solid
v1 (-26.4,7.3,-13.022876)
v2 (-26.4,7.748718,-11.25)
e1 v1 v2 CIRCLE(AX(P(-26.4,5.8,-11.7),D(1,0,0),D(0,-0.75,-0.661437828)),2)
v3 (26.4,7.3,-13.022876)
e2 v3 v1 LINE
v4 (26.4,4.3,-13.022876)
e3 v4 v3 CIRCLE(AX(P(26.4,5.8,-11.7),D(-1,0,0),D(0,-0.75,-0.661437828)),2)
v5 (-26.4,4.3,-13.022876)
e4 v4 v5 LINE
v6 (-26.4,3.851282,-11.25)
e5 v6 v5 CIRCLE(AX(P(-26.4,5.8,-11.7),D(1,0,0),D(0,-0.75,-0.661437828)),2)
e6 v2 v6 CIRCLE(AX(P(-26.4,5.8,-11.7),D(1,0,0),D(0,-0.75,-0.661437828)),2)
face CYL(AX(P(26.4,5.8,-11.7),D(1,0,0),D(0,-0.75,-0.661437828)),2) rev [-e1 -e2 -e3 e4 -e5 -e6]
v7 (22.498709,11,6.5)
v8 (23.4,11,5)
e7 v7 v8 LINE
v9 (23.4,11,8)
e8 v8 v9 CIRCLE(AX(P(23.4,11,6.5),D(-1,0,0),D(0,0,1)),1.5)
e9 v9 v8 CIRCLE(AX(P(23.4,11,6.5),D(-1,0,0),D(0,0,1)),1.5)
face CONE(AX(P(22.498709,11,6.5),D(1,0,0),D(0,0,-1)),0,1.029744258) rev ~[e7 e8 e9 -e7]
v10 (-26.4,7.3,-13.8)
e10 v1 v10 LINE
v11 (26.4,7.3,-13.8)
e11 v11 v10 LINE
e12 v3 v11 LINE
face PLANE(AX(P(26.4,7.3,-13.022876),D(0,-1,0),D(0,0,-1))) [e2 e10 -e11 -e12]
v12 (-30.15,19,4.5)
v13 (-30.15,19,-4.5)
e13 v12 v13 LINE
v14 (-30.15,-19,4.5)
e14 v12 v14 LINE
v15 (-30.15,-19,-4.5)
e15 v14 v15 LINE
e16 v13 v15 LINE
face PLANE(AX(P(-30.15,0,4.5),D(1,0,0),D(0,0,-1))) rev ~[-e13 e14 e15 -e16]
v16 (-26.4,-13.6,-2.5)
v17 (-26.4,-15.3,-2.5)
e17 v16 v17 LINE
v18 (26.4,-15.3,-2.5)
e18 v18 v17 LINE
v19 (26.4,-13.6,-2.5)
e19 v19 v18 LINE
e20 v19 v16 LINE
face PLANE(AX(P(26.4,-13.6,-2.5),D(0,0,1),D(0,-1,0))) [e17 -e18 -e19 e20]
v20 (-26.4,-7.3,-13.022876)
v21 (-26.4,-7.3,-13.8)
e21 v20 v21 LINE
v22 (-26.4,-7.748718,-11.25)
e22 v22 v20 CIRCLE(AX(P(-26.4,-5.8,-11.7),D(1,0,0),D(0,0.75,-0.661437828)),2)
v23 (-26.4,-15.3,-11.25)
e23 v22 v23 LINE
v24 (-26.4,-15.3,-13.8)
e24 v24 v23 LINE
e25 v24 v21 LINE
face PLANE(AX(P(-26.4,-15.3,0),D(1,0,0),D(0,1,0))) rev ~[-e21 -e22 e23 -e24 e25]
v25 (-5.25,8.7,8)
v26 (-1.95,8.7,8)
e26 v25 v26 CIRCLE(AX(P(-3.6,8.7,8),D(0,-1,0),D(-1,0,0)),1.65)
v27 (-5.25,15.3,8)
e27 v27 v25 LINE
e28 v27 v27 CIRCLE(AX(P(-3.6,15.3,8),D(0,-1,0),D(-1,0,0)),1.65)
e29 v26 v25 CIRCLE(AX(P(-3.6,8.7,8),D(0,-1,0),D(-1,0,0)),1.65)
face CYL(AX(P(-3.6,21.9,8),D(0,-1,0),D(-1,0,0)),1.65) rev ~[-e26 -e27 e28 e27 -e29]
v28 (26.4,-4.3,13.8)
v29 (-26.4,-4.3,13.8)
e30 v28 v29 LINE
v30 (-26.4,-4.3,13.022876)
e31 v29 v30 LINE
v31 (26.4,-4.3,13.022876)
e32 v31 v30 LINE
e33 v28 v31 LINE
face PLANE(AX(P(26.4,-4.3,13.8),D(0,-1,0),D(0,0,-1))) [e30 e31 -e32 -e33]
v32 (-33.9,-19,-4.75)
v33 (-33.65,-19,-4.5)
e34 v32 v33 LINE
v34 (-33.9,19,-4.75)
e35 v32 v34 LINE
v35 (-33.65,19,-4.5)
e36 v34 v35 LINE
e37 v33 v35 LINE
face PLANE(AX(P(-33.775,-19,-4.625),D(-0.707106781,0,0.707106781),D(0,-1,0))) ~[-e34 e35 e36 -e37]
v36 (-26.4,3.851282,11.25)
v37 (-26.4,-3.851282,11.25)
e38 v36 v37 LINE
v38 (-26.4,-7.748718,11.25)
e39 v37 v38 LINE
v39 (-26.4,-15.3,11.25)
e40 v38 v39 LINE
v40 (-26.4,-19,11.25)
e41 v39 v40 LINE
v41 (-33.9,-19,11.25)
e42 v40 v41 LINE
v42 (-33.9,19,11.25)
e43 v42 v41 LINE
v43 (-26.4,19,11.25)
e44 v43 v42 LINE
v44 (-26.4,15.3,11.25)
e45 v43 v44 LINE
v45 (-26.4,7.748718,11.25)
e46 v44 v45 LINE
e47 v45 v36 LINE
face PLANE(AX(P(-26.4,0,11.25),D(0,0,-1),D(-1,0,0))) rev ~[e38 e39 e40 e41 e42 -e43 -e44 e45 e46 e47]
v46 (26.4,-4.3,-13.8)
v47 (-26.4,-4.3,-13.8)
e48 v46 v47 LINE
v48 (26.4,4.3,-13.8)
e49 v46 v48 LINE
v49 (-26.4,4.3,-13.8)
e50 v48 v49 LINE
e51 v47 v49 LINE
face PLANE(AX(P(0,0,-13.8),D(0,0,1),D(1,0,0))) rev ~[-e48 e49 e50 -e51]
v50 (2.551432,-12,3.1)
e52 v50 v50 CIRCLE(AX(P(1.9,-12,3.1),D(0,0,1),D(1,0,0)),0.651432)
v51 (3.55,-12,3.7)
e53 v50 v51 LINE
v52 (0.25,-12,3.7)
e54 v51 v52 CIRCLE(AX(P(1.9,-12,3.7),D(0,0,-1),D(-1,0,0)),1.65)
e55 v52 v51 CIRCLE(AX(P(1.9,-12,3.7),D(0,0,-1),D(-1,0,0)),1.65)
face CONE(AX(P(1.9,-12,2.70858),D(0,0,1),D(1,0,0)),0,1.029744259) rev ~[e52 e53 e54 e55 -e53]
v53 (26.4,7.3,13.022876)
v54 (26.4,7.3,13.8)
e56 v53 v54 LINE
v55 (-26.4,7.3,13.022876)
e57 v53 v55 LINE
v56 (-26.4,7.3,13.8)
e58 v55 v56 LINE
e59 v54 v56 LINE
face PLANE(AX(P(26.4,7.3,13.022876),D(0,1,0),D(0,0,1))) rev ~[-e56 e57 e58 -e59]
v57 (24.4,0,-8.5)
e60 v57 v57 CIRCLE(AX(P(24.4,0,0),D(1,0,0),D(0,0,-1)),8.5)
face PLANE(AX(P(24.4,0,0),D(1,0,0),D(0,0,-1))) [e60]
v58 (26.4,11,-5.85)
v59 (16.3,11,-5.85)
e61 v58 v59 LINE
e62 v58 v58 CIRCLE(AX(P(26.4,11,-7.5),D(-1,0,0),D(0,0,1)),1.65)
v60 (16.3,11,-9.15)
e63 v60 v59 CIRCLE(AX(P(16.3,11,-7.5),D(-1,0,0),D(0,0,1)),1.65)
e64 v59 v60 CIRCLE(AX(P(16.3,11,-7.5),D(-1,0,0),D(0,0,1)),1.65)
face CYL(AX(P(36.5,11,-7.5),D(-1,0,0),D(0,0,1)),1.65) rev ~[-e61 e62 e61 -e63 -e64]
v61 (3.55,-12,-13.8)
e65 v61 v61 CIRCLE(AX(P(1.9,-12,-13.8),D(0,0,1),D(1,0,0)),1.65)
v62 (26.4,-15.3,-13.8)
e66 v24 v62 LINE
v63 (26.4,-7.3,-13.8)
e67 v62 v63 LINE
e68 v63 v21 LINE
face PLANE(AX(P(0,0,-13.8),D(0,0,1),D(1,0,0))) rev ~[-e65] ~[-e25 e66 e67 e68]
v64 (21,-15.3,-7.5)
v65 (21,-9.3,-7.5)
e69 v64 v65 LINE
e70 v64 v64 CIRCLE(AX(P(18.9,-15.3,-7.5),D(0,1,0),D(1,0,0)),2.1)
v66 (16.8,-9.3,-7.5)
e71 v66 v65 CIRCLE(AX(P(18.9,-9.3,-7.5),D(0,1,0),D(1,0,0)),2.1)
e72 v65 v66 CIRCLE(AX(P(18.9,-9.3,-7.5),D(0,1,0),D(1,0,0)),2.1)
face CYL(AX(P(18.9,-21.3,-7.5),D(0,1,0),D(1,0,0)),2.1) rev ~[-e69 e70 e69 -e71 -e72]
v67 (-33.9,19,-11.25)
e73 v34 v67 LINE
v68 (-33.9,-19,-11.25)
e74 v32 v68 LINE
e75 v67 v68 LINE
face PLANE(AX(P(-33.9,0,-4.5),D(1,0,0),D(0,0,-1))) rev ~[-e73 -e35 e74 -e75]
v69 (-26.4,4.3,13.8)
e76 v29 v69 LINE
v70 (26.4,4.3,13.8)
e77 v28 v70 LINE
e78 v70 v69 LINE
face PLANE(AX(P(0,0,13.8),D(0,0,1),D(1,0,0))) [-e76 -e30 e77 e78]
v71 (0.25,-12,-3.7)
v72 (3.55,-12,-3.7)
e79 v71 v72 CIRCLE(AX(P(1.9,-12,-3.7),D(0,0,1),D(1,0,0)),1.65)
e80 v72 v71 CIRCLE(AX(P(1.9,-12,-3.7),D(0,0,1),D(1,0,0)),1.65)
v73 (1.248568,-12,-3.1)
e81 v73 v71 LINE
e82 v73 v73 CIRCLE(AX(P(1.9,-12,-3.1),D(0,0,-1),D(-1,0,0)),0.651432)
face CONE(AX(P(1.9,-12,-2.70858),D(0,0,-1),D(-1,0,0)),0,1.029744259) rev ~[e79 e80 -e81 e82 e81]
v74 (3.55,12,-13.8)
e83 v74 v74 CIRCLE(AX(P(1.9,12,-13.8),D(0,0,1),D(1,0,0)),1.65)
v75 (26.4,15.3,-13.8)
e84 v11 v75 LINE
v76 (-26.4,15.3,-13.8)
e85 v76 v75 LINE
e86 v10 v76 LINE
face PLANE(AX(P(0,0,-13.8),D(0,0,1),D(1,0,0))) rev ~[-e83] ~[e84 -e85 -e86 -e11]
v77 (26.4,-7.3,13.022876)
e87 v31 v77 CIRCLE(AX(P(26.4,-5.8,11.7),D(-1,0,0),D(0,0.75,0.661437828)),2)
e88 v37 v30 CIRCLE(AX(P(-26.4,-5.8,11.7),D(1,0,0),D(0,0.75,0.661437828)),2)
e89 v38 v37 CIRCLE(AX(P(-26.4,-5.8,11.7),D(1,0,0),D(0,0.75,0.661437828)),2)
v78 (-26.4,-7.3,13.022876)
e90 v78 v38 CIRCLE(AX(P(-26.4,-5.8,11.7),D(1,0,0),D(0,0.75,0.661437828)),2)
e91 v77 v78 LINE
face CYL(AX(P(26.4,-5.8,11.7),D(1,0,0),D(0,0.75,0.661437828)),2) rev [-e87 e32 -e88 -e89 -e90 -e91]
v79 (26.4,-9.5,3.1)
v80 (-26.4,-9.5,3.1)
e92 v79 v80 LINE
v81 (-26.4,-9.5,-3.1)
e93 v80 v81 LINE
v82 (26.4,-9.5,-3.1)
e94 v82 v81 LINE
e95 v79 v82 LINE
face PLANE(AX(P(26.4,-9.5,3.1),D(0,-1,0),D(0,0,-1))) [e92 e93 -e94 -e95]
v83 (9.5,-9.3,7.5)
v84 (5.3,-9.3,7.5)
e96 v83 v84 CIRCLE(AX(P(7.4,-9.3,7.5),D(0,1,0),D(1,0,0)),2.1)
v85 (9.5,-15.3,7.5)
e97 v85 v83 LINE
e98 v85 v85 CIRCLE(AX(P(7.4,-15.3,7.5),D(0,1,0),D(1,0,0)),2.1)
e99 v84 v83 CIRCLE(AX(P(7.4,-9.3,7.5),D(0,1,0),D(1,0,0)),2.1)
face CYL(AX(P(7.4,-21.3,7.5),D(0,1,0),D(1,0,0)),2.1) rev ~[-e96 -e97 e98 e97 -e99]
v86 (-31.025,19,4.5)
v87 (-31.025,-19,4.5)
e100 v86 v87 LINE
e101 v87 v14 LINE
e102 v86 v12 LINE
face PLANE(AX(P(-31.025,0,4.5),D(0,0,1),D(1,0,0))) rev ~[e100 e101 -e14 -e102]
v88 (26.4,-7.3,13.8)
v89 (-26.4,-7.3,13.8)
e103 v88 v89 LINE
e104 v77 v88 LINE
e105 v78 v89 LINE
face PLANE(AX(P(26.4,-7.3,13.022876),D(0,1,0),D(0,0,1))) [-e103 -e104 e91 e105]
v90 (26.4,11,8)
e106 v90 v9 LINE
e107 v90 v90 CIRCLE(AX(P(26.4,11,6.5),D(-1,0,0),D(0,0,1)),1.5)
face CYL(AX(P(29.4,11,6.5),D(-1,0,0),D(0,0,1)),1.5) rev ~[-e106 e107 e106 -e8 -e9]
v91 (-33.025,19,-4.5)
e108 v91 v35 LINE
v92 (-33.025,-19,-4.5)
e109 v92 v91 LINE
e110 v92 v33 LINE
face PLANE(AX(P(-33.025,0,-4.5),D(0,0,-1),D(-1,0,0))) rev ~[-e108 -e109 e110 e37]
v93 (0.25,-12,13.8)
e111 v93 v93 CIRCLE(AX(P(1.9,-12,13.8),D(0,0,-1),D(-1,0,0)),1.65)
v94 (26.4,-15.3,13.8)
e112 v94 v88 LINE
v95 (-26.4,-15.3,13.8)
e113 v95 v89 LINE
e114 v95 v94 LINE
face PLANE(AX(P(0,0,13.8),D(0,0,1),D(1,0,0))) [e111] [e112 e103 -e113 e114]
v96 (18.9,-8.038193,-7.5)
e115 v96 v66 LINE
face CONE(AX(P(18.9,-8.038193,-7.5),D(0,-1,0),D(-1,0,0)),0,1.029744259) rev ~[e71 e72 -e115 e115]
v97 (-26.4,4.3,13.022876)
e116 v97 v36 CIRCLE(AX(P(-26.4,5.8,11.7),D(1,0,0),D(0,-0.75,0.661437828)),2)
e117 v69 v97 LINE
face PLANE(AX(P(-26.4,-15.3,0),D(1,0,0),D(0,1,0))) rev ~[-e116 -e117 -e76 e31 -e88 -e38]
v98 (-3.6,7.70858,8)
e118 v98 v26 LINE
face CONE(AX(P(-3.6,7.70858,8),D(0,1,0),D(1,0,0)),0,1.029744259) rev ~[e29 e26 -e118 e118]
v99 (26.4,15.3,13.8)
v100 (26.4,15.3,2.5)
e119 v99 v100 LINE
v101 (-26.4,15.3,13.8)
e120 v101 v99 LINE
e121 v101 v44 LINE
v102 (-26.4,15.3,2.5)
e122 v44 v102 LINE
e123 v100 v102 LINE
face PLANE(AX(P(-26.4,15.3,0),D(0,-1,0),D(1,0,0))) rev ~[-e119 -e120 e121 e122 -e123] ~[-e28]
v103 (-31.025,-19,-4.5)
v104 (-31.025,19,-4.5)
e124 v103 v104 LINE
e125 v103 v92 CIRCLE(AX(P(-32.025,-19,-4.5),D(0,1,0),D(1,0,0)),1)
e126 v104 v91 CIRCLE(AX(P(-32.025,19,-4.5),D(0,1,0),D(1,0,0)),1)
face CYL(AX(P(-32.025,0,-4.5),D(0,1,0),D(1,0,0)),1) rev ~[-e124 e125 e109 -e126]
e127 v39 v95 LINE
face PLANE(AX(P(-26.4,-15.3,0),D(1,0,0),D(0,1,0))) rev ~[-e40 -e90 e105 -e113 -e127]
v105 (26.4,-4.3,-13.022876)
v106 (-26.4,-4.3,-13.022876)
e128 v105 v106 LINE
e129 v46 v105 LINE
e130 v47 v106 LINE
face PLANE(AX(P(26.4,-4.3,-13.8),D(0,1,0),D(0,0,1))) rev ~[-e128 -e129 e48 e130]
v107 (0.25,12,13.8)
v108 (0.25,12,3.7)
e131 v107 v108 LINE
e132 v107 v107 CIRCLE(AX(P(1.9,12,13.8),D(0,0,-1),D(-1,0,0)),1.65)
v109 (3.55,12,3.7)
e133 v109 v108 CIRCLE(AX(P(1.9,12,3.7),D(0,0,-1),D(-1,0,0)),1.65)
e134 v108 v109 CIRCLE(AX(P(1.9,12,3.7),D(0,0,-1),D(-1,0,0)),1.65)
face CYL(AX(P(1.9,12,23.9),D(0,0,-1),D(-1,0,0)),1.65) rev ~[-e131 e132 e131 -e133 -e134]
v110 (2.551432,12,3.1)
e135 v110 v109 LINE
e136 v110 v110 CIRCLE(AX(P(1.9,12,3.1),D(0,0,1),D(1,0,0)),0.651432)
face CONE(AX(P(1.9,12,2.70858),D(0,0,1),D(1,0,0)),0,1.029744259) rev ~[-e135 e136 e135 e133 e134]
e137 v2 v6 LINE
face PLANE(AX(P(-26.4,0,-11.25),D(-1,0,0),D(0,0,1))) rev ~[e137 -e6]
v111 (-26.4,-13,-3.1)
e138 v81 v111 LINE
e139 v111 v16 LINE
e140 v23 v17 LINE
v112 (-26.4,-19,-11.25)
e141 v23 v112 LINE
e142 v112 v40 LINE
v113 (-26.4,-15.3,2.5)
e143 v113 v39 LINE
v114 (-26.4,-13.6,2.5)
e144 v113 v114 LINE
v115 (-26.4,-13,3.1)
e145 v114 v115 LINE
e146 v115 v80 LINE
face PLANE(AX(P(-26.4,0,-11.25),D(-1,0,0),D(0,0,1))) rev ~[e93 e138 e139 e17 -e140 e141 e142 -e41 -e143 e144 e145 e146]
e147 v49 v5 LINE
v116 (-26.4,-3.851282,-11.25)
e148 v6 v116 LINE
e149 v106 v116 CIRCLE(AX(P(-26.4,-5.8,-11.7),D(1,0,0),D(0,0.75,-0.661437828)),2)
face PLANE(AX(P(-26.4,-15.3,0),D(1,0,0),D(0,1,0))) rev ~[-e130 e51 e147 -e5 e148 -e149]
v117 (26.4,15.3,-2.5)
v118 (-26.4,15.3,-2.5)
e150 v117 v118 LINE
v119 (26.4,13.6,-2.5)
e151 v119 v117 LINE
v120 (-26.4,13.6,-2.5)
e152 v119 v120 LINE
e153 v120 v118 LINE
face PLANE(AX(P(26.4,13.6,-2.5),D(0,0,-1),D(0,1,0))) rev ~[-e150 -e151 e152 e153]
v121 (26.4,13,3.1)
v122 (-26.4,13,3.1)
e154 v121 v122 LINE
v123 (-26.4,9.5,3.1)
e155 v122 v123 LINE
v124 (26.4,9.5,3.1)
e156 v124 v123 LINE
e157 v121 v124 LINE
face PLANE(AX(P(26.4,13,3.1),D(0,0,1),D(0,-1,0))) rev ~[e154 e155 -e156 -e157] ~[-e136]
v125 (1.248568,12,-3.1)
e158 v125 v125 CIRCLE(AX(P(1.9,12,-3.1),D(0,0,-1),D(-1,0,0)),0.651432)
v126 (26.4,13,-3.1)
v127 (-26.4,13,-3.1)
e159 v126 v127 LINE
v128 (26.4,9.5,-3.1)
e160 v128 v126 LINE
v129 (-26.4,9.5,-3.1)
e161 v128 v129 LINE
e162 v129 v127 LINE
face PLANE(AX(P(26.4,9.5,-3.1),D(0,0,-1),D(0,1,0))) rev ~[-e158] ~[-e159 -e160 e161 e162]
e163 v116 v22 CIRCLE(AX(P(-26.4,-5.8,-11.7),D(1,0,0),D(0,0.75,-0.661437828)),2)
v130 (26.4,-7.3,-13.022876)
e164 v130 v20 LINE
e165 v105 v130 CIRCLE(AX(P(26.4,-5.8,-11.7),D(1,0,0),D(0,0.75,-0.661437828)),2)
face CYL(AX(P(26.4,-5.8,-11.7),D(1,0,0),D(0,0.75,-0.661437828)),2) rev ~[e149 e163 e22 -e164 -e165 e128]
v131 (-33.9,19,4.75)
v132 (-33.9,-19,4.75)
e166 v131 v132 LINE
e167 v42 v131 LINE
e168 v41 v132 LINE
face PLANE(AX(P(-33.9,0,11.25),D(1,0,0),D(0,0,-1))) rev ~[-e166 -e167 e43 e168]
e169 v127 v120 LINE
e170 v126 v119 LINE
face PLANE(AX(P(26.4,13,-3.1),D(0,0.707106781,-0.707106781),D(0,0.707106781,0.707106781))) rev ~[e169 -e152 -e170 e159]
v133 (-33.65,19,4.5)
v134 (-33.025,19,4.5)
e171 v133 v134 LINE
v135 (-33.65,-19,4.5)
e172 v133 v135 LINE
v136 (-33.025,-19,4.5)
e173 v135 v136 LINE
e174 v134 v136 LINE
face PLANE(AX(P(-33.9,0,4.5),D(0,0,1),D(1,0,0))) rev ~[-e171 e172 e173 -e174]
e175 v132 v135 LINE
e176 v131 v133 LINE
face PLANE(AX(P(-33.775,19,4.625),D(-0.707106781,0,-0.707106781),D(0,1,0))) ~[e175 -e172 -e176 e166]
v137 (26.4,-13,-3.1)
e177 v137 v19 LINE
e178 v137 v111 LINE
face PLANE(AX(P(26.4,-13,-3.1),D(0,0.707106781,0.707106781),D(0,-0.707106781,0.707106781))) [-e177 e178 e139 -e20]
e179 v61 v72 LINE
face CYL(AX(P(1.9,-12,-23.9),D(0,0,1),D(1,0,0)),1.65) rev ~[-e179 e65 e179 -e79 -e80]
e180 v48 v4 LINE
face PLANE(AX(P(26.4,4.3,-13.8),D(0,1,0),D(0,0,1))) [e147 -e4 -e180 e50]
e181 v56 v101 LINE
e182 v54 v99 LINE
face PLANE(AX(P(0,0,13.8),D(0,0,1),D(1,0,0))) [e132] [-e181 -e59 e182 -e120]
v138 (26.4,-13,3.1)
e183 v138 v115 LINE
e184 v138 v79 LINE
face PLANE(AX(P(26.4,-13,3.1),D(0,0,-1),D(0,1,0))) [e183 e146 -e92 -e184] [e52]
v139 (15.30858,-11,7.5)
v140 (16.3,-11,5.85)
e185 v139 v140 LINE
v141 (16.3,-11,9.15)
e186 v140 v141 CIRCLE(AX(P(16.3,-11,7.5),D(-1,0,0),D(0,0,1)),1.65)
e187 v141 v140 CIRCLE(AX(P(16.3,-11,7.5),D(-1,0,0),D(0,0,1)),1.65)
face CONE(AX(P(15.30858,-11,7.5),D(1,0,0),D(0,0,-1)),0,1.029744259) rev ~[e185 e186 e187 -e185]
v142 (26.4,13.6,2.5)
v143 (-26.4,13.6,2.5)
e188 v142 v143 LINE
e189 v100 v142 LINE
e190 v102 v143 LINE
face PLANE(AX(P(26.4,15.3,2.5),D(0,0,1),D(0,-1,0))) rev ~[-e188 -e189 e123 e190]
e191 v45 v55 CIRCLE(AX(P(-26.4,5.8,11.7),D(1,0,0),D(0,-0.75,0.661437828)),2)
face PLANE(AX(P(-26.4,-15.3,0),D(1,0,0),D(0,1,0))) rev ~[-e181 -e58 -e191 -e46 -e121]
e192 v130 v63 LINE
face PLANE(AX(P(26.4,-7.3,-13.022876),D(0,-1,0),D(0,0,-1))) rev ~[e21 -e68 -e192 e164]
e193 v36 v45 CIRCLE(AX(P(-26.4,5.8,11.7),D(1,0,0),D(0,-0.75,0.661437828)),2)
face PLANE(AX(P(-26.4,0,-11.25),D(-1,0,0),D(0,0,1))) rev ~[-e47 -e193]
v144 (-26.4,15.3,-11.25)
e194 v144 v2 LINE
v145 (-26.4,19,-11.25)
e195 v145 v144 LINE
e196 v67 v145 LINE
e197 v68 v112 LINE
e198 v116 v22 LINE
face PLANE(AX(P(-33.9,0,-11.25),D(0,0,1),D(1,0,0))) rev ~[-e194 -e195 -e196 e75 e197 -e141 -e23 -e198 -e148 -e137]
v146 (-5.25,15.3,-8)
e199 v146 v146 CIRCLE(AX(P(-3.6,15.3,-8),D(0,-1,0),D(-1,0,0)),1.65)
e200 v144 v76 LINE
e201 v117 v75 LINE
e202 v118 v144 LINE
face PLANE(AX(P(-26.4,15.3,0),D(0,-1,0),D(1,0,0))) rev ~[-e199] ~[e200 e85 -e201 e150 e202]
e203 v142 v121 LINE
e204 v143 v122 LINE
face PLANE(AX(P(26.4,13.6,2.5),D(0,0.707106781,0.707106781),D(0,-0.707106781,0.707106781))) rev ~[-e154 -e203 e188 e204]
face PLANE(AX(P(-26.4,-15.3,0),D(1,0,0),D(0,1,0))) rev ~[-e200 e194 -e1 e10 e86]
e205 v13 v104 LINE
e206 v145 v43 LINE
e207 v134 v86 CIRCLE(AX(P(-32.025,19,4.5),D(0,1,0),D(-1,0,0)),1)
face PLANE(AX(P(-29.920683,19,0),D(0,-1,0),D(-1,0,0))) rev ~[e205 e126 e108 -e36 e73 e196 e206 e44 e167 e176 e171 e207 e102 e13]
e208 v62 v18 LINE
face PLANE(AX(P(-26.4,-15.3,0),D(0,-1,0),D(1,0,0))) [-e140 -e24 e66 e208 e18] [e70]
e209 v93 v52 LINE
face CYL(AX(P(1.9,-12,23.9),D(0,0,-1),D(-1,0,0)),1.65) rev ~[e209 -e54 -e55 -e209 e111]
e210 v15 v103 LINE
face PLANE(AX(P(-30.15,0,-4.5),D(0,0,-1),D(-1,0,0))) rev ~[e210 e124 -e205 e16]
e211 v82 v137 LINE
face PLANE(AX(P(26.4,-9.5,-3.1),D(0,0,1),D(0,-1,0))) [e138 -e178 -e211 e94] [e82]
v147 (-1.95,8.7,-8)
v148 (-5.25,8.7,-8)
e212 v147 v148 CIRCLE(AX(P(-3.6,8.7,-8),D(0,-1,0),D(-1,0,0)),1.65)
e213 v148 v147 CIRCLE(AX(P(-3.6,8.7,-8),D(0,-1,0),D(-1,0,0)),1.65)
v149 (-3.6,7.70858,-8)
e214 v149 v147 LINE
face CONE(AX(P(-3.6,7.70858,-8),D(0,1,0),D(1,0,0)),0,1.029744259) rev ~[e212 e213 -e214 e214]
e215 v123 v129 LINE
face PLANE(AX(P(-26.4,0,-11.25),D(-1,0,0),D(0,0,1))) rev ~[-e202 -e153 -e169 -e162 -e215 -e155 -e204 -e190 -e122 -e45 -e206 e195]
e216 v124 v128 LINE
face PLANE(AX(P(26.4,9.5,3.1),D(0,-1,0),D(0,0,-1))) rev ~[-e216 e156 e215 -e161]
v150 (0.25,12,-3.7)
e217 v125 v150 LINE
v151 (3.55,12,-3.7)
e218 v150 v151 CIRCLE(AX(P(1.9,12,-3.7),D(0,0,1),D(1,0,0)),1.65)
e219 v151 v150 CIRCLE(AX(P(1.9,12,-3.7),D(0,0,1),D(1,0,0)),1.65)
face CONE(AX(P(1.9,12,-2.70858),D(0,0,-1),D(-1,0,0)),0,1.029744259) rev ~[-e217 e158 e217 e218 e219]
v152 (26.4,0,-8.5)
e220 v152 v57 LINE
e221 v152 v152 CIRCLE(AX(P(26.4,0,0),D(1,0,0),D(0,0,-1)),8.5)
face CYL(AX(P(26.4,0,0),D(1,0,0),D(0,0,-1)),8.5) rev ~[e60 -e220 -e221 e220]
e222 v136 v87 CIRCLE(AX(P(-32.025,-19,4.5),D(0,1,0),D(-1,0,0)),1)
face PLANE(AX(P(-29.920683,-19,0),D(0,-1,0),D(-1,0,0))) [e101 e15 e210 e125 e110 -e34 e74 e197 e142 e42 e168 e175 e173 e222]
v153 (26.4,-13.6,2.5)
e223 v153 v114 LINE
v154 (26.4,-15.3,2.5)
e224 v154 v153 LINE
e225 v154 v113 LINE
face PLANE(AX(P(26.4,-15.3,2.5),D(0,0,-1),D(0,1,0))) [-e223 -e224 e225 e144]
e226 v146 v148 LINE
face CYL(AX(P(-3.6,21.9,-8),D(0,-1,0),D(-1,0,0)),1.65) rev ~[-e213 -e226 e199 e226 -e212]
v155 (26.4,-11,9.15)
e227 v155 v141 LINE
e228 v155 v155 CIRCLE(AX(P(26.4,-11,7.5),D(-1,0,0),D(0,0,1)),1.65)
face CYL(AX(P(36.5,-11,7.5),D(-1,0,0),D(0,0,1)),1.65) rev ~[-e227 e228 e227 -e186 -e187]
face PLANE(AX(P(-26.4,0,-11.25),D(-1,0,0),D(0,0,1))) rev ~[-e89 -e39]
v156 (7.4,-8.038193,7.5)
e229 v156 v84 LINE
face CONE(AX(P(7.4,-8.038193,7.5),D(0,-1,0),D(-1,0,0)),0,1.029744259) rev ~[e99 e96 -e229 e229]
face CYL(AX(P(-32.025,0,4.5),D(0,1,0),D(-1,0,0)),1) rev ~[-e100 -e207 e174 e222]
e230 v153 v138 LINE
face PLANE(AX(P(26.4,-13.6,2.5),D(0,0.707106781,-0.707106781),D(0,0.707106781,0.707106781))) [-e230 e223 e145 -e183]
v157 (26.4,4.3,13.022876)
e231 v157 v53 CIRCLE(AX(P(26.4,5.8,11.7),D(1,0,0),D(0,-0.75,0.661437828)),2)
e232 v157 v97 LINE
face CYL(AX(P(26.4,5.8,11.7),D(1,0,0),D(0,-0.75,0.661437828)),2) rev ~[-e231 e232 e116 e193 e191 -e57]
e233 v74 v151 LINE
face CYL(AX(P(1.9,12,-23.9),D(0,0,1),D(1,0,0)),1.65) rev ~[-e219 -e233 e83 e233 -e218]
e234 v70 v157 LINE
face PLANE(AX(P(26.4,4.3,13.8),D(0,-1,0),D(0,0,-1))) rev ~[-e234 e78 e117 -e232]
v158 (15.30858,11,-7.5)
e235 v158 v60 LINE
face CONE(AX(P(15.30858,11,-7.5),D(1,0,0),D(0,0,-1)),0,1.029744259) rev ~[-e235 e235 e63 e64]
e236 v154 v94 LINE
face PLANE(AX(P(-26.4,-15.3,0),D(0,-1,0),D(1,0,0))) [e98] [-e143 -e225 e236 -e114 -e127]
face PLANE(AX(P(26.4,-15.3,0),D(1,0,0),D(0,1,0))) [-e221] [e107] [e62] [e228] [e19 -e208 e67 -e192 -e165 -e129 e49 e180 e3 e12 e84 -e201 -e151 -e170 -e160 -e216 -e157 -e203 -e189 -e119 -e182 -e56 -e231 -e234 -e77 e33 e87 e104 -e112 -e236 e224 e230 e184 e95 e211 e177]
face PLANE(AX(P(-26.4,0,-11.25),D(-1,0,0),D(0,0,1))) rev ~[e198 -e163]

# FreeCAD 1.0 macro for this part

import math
import FreeCAD as App
import Part
import Sketcher

V = App.Vector


def edges_at(feature, points):
    """Names of the edges that pass closest to the given points."""
    edges = feature.Shape.Edges
    near = lambda p: min(range(len(edges)), key=lambda i: edges[i].distToShape(Part.Vertex(*p))[0])
    return sorted({f"Edge{near(p) + 1}" for p in points})

doc = App.newDocument("Part")
body = doc.addObject("PartDesign::Body", "Body")

sketch1 = body.newObject("Sketcher::SketchObject", "Sketch")
sketch1.AttachmentSupport = (doc.getObject("XY_Plane"), [""])
sketch1.MapMode = "FlatFace"
sketch1.addGeometry(Part.LineSegment(V(-26, 15, 0), V(-26, -15, 0)), False)
sketch1.addGeometry(Part.LineSegment(V(-26, -15, 0), V(26, -15, 0)), False)
sketch1.addGeometry(Part.LineSegment(V(26, -15, 0), V(26, 15, 0)), False)
sketch1.addGeometry(Part.LineSegment(V(26, 15, 0), V(-26, 15, 0)), False)
sketch1.addConstraint(Sketcher.Constraint("Coincident", 0, 2, 1, 1))
sketch1.addConstraint(Sketcher.Constraint("Coincident", 1, 2, 2, 1))
sketch1.addConstraint(Sketcher.Constraint("Coincident", 2, 2, 3, 1))
sketch1.addConstraint(Sketcher.Constraint("Coincident", 3, 2, 0, 1))
sketch1.addConstraint(Sketcher.Constraint("Vertical", 0))
sketch1.addConstraint(Sketcher.Constraint("Horizontal", 1))
sketch1.addConstraint(Sketcher.Constraint("Vertical", 2))
sketch1.addConstraint(Sketcher.Constraint("Horizontal", 3))
sketch1.addConstraint(Sketcher.Constraint("Symmetric", 0, 2, 2, 2, -1, 1))
sketch1.addConstraint(Sketcher.Constraint("DistanceX", 1, 1, 1, 2, 52.8))
sketch1.addConstraint(Sketcher.Constraint("DistanceY", 0, 2, 0, 1, 30.6))
pad1 = body.newObject("PartDesign::Pad", "Pad")
pad1.Profile = sketch1
pad1.Length = 27.6
pad1.Midplane = True

sketch2 = body.newObject("Sketcher::SketchObject", "Sketch001")
sketch2.AttachmentSupport = (doc.getObject("YZ_Plane"), [""])
sketch2.MapMode = "FlatFace"
sketch2.AttachmentOffset = App.Placement(V(0, 0, 26.4), App.Rotation())
sketch2.addGeometry(Part.LineSegment(V(15.3, -2.5, 0), V(15.3, 2.5, 0)), False)
sketch2.addGeometry(Part.LineSegment(V(15.3, 2.5, 0), V(13.6, 2.5, 0)), False)
sketch2.addGeometry(Part.LineSegment(V(13.6, 2.5, 0), V(13, 3.1, 0)), False)
sketch2.addGeometry(Part.LineSegment(V(13, 3.1, 0), V(9.5, 3.1, 0)), False)
sketch2.addGeometry(Part.LineSegment(V(9.5, 3.1, 0), V(9.5, -3.1, 0)), False)
sketch2.addGeometry(Part.LineSegment(V(9.5, -3.1, 0), V(13, -3.1, 0)), False)
sketch2.addGeometry(Part.LineSegment(V(13, -3.1, 0), V(13.6, -2.5, 0)), False)
sketch2.addGeometry(Part.LineSegment(V(13.6, -2.5, 0), V(15.3, -2.5, 0)), False)
sketch2.addGeometry(Part.LineSegment(V(7.3, 13, 0), V(7.3, 13.8, 0)), False)
sketch2.addGeometry(Part.LineSegment(V(7.3, 13.8, 0), V(4.3, 13.8, 0)), False)
sketch2.addGeometry(Part.LineSegment(V(4.3, 13.8, 0), V(4.3, 13, 0)), False)
sketch2.addGeometry(Part.ArcOfCircle(Part.Circle(V(5.8, 11.7, 0), V(0, 0, 1), 2), math.radians(139), math.radians(401)), False)
sketch2.addGeometry(Part.LineSegment(V(-4.3, 13.8, 0), V(-7.3, 13.8, 0)), False)
sketch2.addGeometry(Part.LineSegment(V(-7.3, 13.8, 0), V(-7.3, 13, 0)), False)
sketch2.addGeometry(Part.ArcOfCircle(Part.Circle(V(-5.8, 11.7, 0), V(0, 0, 1), 2), math.radians(139), math.radians(401)), False)
sketch2.addGeometry(Part.LineSegment(V(-4.3, 13, 0), V(-4.3, 13.8, 0)), False)
sketch2.addGeometry(Part.LineSegment(V(-9.5, -3.1, 0), V(-9.5, 3.1, 0)), False)
sketch2.addGeometry(Part.LineSegment(V(-9.5, 3.1, 0), V(-13, 3.1, 0)), False)
sketch2.addGeometry(Part.LineSegment(V(-13, 3.1, 0), V(-13.6, 2.5, 0)), False)
sketch2.addGeometry(Part.LineSegment(V(-13.6, 2.5, 0), V(-15.3, 2.5, 0)), False)
sketch2.addGeometry(Part.LineSegment(V(-15.3, 2.5, 0), V(-15.3, -2.5, 0)), False)
sketch2.addGeometry(Part.LineSegment(V(-15.3, -2.5, 0), V(-13.6, -2.5, 0)), False)
sketch2.addGeometry(Part.LineSegment(V(-13.6, -2.5, 0), V(-13, -3.1, 0)), False)
sketch2.addGeometry(Part.LineSegment(V(-13, -3.1, 0), V(-9.5, -3.1, 0)), False)
sketch2.addGeometry(Part.LineSegment(V(-7.3, -13, 0), V(-7.3, -13.8, 0)), False)
sketch2.addGeometry(Part.LineSegment(V(-7.3, -13.8, 0), V(-4.3, -13.8, 0)), False)
sketch2.addGeometry(Part.LineSegment(V(-4.3, -13.8, 0), V(-4.3, -13, 0)), False)
sketch2.addGeometry(Part.ArcOfCircle(Part.Circle(V(-5.8, -11.7, 0), V(0, 0, 1), 2), math.radians(-41), math.radians(221)), False)
sketch2.addGeometry(Part.LineSegment(V(4.3, -13.8, 0), V(7.3, -13.8, 0)), False)
sketch2.addGeometry(Part.LineSegment(V(7.3, -13.8, 0), V(7.3, -13, 0)), False)
sketch2.addGeometry(Part.ArcOfCircle(Part.Circle(V(5.8, -11.7, 0), V(0, 0, 1), 2), math.radians(-41), math.radians(221)), False)
sketch2.addGeometry(Part.LineSegment(V(4.3, -13, 0), V(4.3, -13.8, 0)), False)
sketch2.addConstraint(Sketcher.Constraint("Coincident", 0, 2, 1, 1))
sketch2.addConstraint(Sketcher.Constraint("Coincident", 1, 2, 2, 1))
sketch2.addConstraint(Sketcher.Constraint("Coincident", 2, 2, 3, 1))
sketch2.addConstraint(Sketcher.Constraint("Coincident", 3, 2, 4, 1))
sketch2.addConstraint(Sketcher.Constraint("Coincident", 4, 2, 5, 1))
sketch2.addConstraint(Sketcher.Constraint("Coincident", 5, 2, 6, 1))
sketch2.addConstraint(Sketcher.Constraint("Coincident", 6, 2, 7, 1))
sketch2.addConstraint(Sketcher.Constraint("Coincident", 7, 2, 0, 1))
sketch2.addConstraint(Sketcher.Constraint("Coincident", 8, 2, 9, 1))
sketch2.addConstraint(Sketcher.Constraint("Coincident", 9, 2, 10, 1))
sketch2.addConstraint(Sketcher.Constraint("Coincident", 10, 2, 11, 1))
sketch2.addConstraint(Sketcher.Constraint("Coincident", 11, 2, 8, 1))
sketch2.addConstraint(Sketcher.Constraint("Coincident", 12, 2, 13, 1))
sketch2.addConstraint(Sketcher.Constraint("Coincident", 13, 2, 14, 1))
sketch2.addConstraint(Sketcher.Constraint("Coincident", 14, 2, 15, 1))
sketch2.addConstraint(Sketcher.Constraint("Coincident", 15, 2, 12, 1))
sketch2.addConstraint(Sketcher.Constraint("Coincident", 16, 2, 17, 1))
sketch2.addConstraint(Sketcher.Constraint("Coincident", 17, 2, 18, 1))
sketch2.addConstraint(Sketcher.Constraint("Coincident", 18, 2, 19, 1))
sketch2.addConstraint(Sketcher.Constraint("Coincident", 19, 2, 20, 1))
sketch2.addConstraint(Sketcher.Constraint("Coincident", 20, 2, 21, 1))
sketch2.addConstraint(Sketcher.Constraint("Coincident", 21, 2, 22, 1))
sketch2.addConstraint(Sketcher.Constraint("Coincident", 22, 2, 23, 1))
sketch2.addConstraint(Sketcher.Constraint("Coincident", 23, 2, 16, 1))
sketch2.addConstraint(Sketcher.Constraint("Coincident", 24, 2, 25, 1))
sketch2.addConstraint(Sketcher.Constraint("Coincident", 25, 2, 26, 1))
sketch2.addConstraint(Sketcher.Constraint("Coincident", 26, 2, 27, 1))
sketch2.addConstraint(Sketcher.Constraint("Coincident", 27, 2, 24, 1))
sketch2.addConstraint(Sketcher.Constraint("Coincident", 28, 2, 29, 1))
sketch2.addConstraint(Sketcher.Constraint("Coincident", 29, 2, 30, 1))
sketch2.addConstraint(Sketcher.Constraint("Coincident", 30, 2, 31, 1))
sketch2.addConstraint(Sketcher.Constraint("Coincident", 31, 2, 28, 1))
sketch2.addConstraint(Sketcher.Constraint("Vertical", 0))
sketch2.addConstraint(Sketcher.Constraint("Horizontal", 1))
sketch2.addConstraint(Sketcher.Constraint("Horizontal", 3))
sketch2.addConstraint(Sketcher.Constraint("Vertical", 4))
sketch2.addConstraint(Sketcher.Constraint("Horizontal", 5))
sketch2.addConstraint(Sketcher.Constraint("Horizontal", 7))
sketch2.addConstraint(Sketcher.Constraint("Vertical", 8))
sketch2.addConstraint(Sketcher.Constraint("Horizontal", 9))
sketch2.addConstraint(Sketcher.Constraint("Vertical", 10))
sketch2.addConstraint(Sketcher.Constraint("Horizontal", 12))
sketch2.addConstraint(Sketcher.Constraint("Vertical", 13))
sketch2.addConstraint(Sketcher.Constraint("Vertical", 15))
sketch2.addConstraint(Sketcher.Constraint("Vertical", 16))
sketch2.addConstraint(Sketcher.Constraint("Horizontal", 17))
sketch2.addConstraint(Sketcher.Constraint("Horizontal", 19))
sketch2.addConstraint(Sketcher.Constraint("Vertical", 20))
sketch2.addConstraint(Sketcher.Constraint("Horizontal", 21))
sketch2.addConstraint(Sketcher.Constraint("Horizontal", 23))
sketch2.addConstraint(Sketcher.Constraint("Vertical", 24))
sketch2.addConstraint(Sketcher.Constraint("Horizontal", 25))
sketch2.addConstraint(Sketcher.Constraint("Vertical", 26))
sketch2.addConstraint(Sketcher.Constraint("Horizontal", 28))
sketch2.addConstraint(Sketcher.Constraint("Vertical", 29))
sketch2.addConstraint(Sketcher.Constraint("Vertical", 31))
sketch2.addConstraint(Sketcher.Constraint("Equal", 11, 14))
sketch2.addConstraint(Sketcher.Constraint("Equal", 14, 27))
sketch2.addConstraint(Sketcher.Constraint("Equal", 27, 30))
sketch2.addConstraint(Sketcher.Constraint("Symmetric", 11, 3, 27, 3, -1, 1))
sketch2.addConstraint(Sketcher.Constraint("Symmetric", 14, 3, 30, 3, -1, 1))
sketch2.addConstraint(Sketcher.Constraint("Symmetric", 4, 2, 16, 2, -1, 1))
sketch2.addConstraint(Sketcher.Constraint("Symmetric", 6, 2, 18, 2, -1, 1))
sketch2.addConstraint(Sketcher.Constraint("Symmetric", 0, 2, 20, 2, -1, 1))
sketch2.addConstraint(Sketcher.Constraint("Symmetric", 2, 2, 22, 2, -1, 1))
sketch2.addConstraint(Sketcher.Constraint("Symmetric", 8, 2, 24, 2, -1, 1))
sketch2.addConstraint(Sketcher.Constraint("Symmetric", 12, 2, 28, 2, -1, 1))
sketch2.addConstraint(Sketcher.Constraint("Symmetric", 11, 3, 14, 3, -2))
sketch2.addConstraint(Sketcher.Constraint("Symmetric", 8, 2, 12, 2, -2))
sketch2.addConstraint(Sketcher.Constraint("Symmetric", 2, 2, 17, 2, -2))
sketch2.addConstraint(Sketcher.Constraint("Symmetric", 1, 2, 18, 2, -2))
sketch2.addConstraint(Sketcher.Constraint("Perpendicular", 2, 6))
sketch2.addConstraint(Sketcher.Constraint("Parallel", 6, 18))
sketch2.addConstraint(Sketcher.Constraint("Perpendicular", 18, 22))
sketch2.addConstraint(Sketcher.Constraint("Horizontal", 10, 2, 11, 2))
sketch2.addConstraint(Sketcher.Constraint("Horizontal", 13, 2, 14, 2))
sketch2.addConstraint(Sketcher.Constraint("Horizontal", 26, 2, 27, 2))
sketch2.addConstraint(Sketcher.Constraint("Horizontal", 29, 2, 30, 2))
sketch2.addConstraint(Sketcher.Constraint("Radius", 11, 2.0))
sketch2.addConstraint(Sketcher.Constraint("DistanceX", 9, 2, 9, 1, 3.0))
sketch2.addConstraint(Sketcher.Constraint("DistanceY", 0, 1, 0, 2, 5.0))
sketch2.addConstraint(Sketcher.Constraint("DistanceX", 1, 2, 1, 1, 1.7))
sketch2.addConstraint(Sketcher.Constraint("DistanceX", 3, 2, 3, 1, 3.5))
sketch2.addConstraint(Sketcher.Constraint("DistanceY", 4, 2, 4, 1, 6.2))
sketch2.addConstraint(Sketcher.Constraint("DistanceX", -1, 1, 2, 2, 13.0))
sketch2.addConstraint(Sketcher.Constraint("DistanceX", 19, 2, 13, 2, 8.0))
sketch2.addConstraint(Sketcher.Constraint("DistanceY", -1, 1, 11, 3, 11.7))
sketch2.addConstraint(Sketcher.Constraint("DistanceY", -1, 1, 8, 2, 13.8))
pocket1 = body.newObject("PartDesign::Pocket", "Pocket")
pocket1.Profile = sketch2
pocket1.Type = "ThroughAll"

sketch3 = body.newObject("Sketcher::SketchObject", "Sketch002")
sketch3.AttachmentSupport = (doc.getObject("YZ_Plane"), [""])
sketch3.MapMode = "FlatFace"
sketch3.AttachmentOffset = App.Placement(V(0, 0, 26.4), App.Rotation())
sketch3.addGeometry(Part.Circle(V(0, 0, 0), V(0, 0, 1), 8), False)
sketch3.addConstraint(Sketcher.Constraint("Coincident", 0, 3, -1, 1))
sketch3.addConstraint(Sketcher.Constraint("Diameter", 0, 17.0))
pocket2 = body.newObject("PartDesign::Pocket", "Pocket001")
pocket2.Profile = sketch3
pocket2.Length = 2

sketch4 = body.newObject("Sketcher::SketchObject", "Sketch003")
sketch4.AttachmentSupport = (doc.getObject("YZ_Plane"), [""])
sketch4.MapMode = "FlatFace"
sketch4.AttachmentOffset = App.Placement(V(0, 0, 26.4), App.Rotation())
sketch4.addGeometry(Part.Circle(V(-11, 7.5, 0), V(0, 0, 1), 1.6), False)
sketch4.addGeometry(Part.Circle(V(11, -7.5, 0), V(0, 0, 1), 1.6), False)
sketch4.addConstraint(Sketcher.Constraint("Equal", 0, 1))
sketch4.addConstraint(Sketcher.Constraint("Symmetric", 0, 3, 1, 3, -1, 1))
sketch4.addConstraint(Sketcher.Constraint("Diameter", 0, 3.3))
sketch4.addConstraint(Sketcher.Constraint("DistanceX", 0, 3, -1, 1, 11.0))
sketch4.addConstraint(Sketcher.Constraint("DistanceY", 1, 3, 0, 3, 15.0))
doc.recompute()
hole = body.newObject("PartDesign::Hole", "Hole")
hole.Profile = sketch4
hole.ThreadType = "None"
hole.Diameter = 3.3
hole.DepthType = "Dimension"
hole.Depth = 10.1
hole.DrillPoint = "Angled"
hole.DrillPointAngle = 118

sketch5 = body.newObject("Sketcher::SketchObject", "Sketch004")
sketch5.AttachmentSupport = (doc.getObject("YZ_Plane"), [""])
sketch5.MapMode = "FlatFace"
sketch5.AttachmentOffset = App.Placement(V(0, 0, 26.4), App.Rotation())
sketch5.addGeometry(Part.Circle(V(11, 6.5, 0), V(0, 0, 1), 1.5), False)
sketch5.addConstraint(Sketcher.Constraint("Diameter", 0, 3.0))
sketch5.addConstraint(Sketcher.Constraint("DistanceX", -1, 1, 0, 3, 11.0))
sketch5.addConstraint(Sketcher.Constraint("DistanceY", -1, 1, 0, 3, 6.5))
doc.recompute()
hole2 = body.newObject("PartDesign::Hole", "Hole001")
hole2.Profile = sketch5
hole2.ThreadType = "None"
hole2.Diameter = 3
hole2.DepthType = "Dimension"
hole2.Depth = 3
hole2.DrillPoint = "Angled"
hole2.DrillPointAngle = 118

sketch6 = body.newObject("Sketcher::SketchObject", "Sketch005")
sketch6.AttachmentSupport = (doc.getObject("XY_Plane"), [""])
sketch6.MapMode = "FlatFace"
sketch6.AttachmentOffset = App.Placement(V(0, 0, 13.8), App.Rotation())
sketch6.addGeometry(Part.Circle(V(1.9, 12, 0), V(0, 0, 1), 1.6), False)
sketch6.addGeometry(Part.Circle(V(1.9, -12, 0), V(0, 0, 1), 1.6), False)
sketch6.addConstraint(Sketcher.Constraint("Equal", 0, 1))
sketch6.addConstraint(Sketcher.Constraint("Symmetric", 0, 3, 1, 3, -1))
sketch6.addConstraint(Sketcher.Constraint("Diameter", 0, 3.3))
sketch6.addConstraint(Sketcher.Constraint("DistanceY", -1, 1, 0, 3, 12.0))
sketch6.addConstraint(Sketcher.Constraint("DistanceX", -1, 1, 0, 3, 1.9))
doc.recompute()
hole3 = body.newObject("PartDesign::Hole", "Hole002")
hole3.Profile = sketch6
hole3.ThreadType = "None"
hole3.Diameter = 3.3
hole3.DepthType = "Dimension"
hole3.Depth = 10.1
hole3.DrillPoint = "Angled"
hole3.DrillPointAngle = 118

sketch7 = body.newObject("Sketcher::SketchObject", "Sketch006")
sketch7.AttachmentSupport = (doc.getObject("XY_Plane"), [""])
sketch7.MapMode = "FlatFace"
sketch7.AttachmentOffset = App.Placement(V(0, 0, -13.8), App.Rotation())
sketch7.addGeometry(Part.Circle(V(1.9, 12, 0), V(0, 0, 1), 1.6), False)
sketch7.addGeometry(Part.Circle(V(1.9, -12, 0), V(0, 0, 1), 1.6), False)
sketch7.addConstraint(Sketcher.Constraint("Equal", 0, 1))
sketch7.addConstraint(Sketcher.Constraint("Symmetric", 0, 3, 1, 3, -1))
sketch7.addConstraint(Sketcher.Constraint("Diameter", 0, 3.3))
sketch7.addConstraint(Sketcher.Constraint("DistanceY", -1, 1, 0, 3, 12.0))
sketch7.addConstraint(Sketcher.Constraint("DistanceX", -1, 1, 0, 3, 1.9))
doc.recompute()
hole4 = body.newObject("PartDesign::Hole", "Hole003")
hole4.Profile = sketch7
hole4.ThreadType = "None"
hole4.Diameter = 3.3
hole4.DepthType = "Dimension"
hole4.Depth = 10.1
hole4.DrillPoint = "Angled"
hole4.DrillPointAngle = 118
hole4.Reversed = True

sketch8 = body.newObject("Sketcher::SketchObject", "Sketch007")
sketch8.AttachmentSupport = (doc.getObject("XZ_Plane"), [""])
sketch8.MapMode = "FlatFace"
sketch8.AttachmentOffset = App.Placement(V(0, 0, -15.3), App.Rotation())
sketch8.addGeometry(Part.Circle(V(-3.6, -8, 0), V(0, 0, 1), 1.6), False)
sketch8.addGeometry(Part.Circle(V(-3.6, 8, 0), V(0, 0, 1), 1.6), False)
sketch8.addConstraint(Sketcher.Constraint("Equal", 0, 1))
sketch8.addConstraint(Sketcher.Constraint("Symmetric", 0, 3, 1, 3, -1))
sketch8.addConstraint(Sketcher.Constraint("Diameter", 0, 3.3))
sketch8.addConstraint(Sketcher.Constraint("DistanceY", 0, 3, -1, 1, 8.0))
sketch8.addConstraint(Sketcher.Constraint("DistanceX", 0, 3, -1, 1, 3.6))
doc.recompute()
hole5 = body.newObject("PartDesign::Hole", "Hole004")
hole5.Profile = sketch8
hole5.ThreadType = "None"
hole5.Diameter = 3.3
hole5.DepthType = "Dimension"
hole5.Depth = 6.6
hole5.DrillPoint = "Angled"
hole5.DrillPointAngle = 118
hole5.Reversed = True

sketch9 = body.newObject("Sketcher::SketchObject", "Sketch008")
sketch9.AttachmentSupport = (doc.getObject("XZ_Plane"), [""])
sketch9.MapMode = "FlatFace"
sketch9.AttachmentOffset = App.Placement(V(0, 0, 15.3), App.Rotation())
sketch9.addGeometry(Part.Circle(V(7.4, 7.5, 0), V(0, 0, 1), 2.1), False)
sketch9.addGeometry(Part.Circle(V(18.9, -7.5, 0), V(0, 0, 1), 2.1), False)
sketch9.addConstraint(Sketcher.Constraint("Equal", 0, 1))
sketch9.addConstraint(Sketcher.Constraint("Diameter", 0, 4.2))
sketch9.addConstraint(Sketcher.Constraint("DistanceY", 1, 3, 0, 3, 15.0))
sketch9.addConstraint(Sketcher.Constraint("DistanceX", -1, 1, 0, 3, 7.4))
sketch9.addConstraint(Sketcher.Constraint("DistanceY", -1, 1, 0, 3, 7.5))
sketch9.addConstraint(Sketcher.Constraint("DistanceX", -1, 1, 1, 3, 18.9))
doc.recompute()
hole6 = body.newObject("PartDesign::Hole", "Hole005")
hole6.Profile = sketch9
hole6.ThreadType = "None"
hole6.Diameter = 4.2
hole6.DepthType = "Dimension"
hole6.Depth = 6
hole6.DrillPoint = "Angled"
hole6.DrillPointAngle = 118

sketch10 = body.newObject("Sketcher::SketchObject", "Sketch009")
sketch10.AttachmentSupport = (doc.getObject("XZ_Plane"), [""])
sketch10.MapMode = "FlatFace"
sketch10.addGeometry(Part.LineSegment(V(-33.9, -11.2, 0), V(-33.9, -4.5, 0)), False)
sketch10.addGeometry(Part.LineSegment(V(-33.9, -4.5, 0), V(-33, -4.5, 0)), False)
sketch10.addGeometry(Part.ArcOfCircle(Part.Circle(V(-32, -4.5, 0), V(0, 0, 1), 1), math.radians(180), math.radians(360)), False)
sketch10.addGeometry(Part.LineSegment(V(-31, -4.5, 0), V(-30.1, -4.5, 0)), False)
sketch10.addGeometry(Part.LineSegment(V(-30.1, -4.5, 0), V(-30.1, 4.5, 0)), False)
sketch10.addGeometry(Part.LineSegment(V(-30.1, 4.5, 0), V(-31, 4.5, 0)), False)
sketch10.addGeometry(Part.ArcOfCircle(Part.Circle(V(-32, 4.5, 0), V(0, 0, 1), 1), math.radians(0), math.radians(180)), False)
sketch10.addGeometry(Part.LineSegment(V(-33, 4.5, 0), V(-33.9, 4.5, 0)), False)
sketch10.addGeometry(Part.LineSegment(V(-33.9, 4.5, 0), V(-33.9, 11.2, 0)), False)
sketch10.addGeometry(Part.LineSegment(V(-33.9, 11.2, 0), V(-26.4, 11.2, 0)), False)
sketch10.addGeometry(Part.LineSegment(V(-26.4, 11.2, 0), V(-26.4, -11.2, 0)), False)
sketch10.addGeometry(Part.LineSegment(V(-26.4, -11.2, 0), V(-33.9, -11.2, 0)), False)
sketch10.addConstraint(Sketcher.Constraint("Coincident", 0, 2, 1, 1))
sketch10.addConstraint(Sketcher.Constraint("Coincident", 1, 2, 2, 1))
sketch10.addConstraint(Sketcher.Constraint("Coincident", 2, 2, 3, 1))
sketch10.addConstraint(Sketcher.Constraint("Coincident", 3, 2, 4, 1))
sketch10.addConstraint(Sketcher.Constraint("Coincident", 4, 2, 5, 1))
sketch10.addConstraint(Sketcher.Constraint("Coincident", 5, 2, 6, 1))
sketch10.addConstraint(Sketcher.Constraint("Coincident", 6, 2, 7, 1))
sketch10.addConstraint(Sketcher.Constraint("Coincident", 7, 2, 8, 1))
sketch10.addConstraint(Sketcher.Constraint("Coincident", 8, 2, 9, 1))
sketch10.addConstraint(Sketcher.Constraint("Coincident", 9, 2, 10, 1))
sketch10.addConstraint(Sketcher.Constraint("Coincident", 10, 2, 11, 1))
sketch10.addConstraint(Sketcher.Constraint("Coincident", 11, 2, 0, 1))
sketch10.addConstraint(Sketcher.Constraint("Vertical", 0))
sketch10.addConstraint(Sketcher.Constraint("Horizontal", 1))
sketch10.addConstraint(Sketcher.Constraint("Horizontal", 3))
sketch10.addConstraint(Sketcher.Constraint("Vertical", 4))
sketch10.addConstraint(Sketcher.Constraint("Horizontal", 5))
sketch10.addConstraint(Sketcher.Constraint("Horizontal", 7))
sketch10.addConstraint(Sketcher.Constraint("Vertical", 8))
sketch10.addConstraint(Sketcher.Constraint("Horizontal", 9))
sketch10.addConstraint(Sketcher.Constraint("Vertical", 10))
sketch10.addConstraint(Sketcher.Constraint("Horizontal", 11))
sketch10.addConstraint(Sketcher.Constraint("Equal", 2, 6))
sketch10.addConstraint(Sketcher.Constraint("Symmetric", 2, 3, 6, 3, -1))
sketch10.addConstraint(Sketcher.Constraint("Symmetric", 0, 2, 7, 2, -1))
sketch10.addConstraint(Sketcher.Constraint("Horizontal", 2, 3, 0, 2))
sketch10.addConstraint(Sketcher.Constraint("Horizontal", 1, 2, 2, 2))
sketch10.addConstraint(Sketcher.Constraint("Horizontal", 6, 3, 4, 2))
sketch10.addConstraint(Sketcher.Constraint("Equal", 1, 3))
sketch10.addConstraint(Sketcher.Constraint("Equal", 0, 8))
sketch10.addConstraint(Sketcher.Constraint("Radius", 2, 1.0))
sketch10.addConstraint(Sketcher.Constraint("DistanceY", 4, 1, 4, 2, 9.0))
sketch10.addConstraint(Sketcher.Constraint("DistanceX", 9, 1, 9, 2, 7.5))
sketch10.addConstraint(Sketcher.Constraint("DistanceY", 10, 2, 10, 1, 22.5))
sketch10.addConstraint(Sketcher.Constraint("DistanceX", 0, 2, -1, 1, 33.9))
sketch10.addConstraint(Sketcher.Constraint("DistanceX", 1, 1, 1, 2, 0.875))
pad2 = body.newObject("PartDesign::Pad", "Pad001")
pad2.Profile = sketch10
pad2.Length = 38
pad2.Midplane = True
doc.recompute()

chamfer = body.newObject("PartDesign::Chamfer", "Chamfer")
chamfer.Base = (pad2, edges_at(pad2, [(-33.9, 0, -4.5), (-33.9, 0, 4.5)]))
chamfer.Size = 0.25

doc.recompute()
